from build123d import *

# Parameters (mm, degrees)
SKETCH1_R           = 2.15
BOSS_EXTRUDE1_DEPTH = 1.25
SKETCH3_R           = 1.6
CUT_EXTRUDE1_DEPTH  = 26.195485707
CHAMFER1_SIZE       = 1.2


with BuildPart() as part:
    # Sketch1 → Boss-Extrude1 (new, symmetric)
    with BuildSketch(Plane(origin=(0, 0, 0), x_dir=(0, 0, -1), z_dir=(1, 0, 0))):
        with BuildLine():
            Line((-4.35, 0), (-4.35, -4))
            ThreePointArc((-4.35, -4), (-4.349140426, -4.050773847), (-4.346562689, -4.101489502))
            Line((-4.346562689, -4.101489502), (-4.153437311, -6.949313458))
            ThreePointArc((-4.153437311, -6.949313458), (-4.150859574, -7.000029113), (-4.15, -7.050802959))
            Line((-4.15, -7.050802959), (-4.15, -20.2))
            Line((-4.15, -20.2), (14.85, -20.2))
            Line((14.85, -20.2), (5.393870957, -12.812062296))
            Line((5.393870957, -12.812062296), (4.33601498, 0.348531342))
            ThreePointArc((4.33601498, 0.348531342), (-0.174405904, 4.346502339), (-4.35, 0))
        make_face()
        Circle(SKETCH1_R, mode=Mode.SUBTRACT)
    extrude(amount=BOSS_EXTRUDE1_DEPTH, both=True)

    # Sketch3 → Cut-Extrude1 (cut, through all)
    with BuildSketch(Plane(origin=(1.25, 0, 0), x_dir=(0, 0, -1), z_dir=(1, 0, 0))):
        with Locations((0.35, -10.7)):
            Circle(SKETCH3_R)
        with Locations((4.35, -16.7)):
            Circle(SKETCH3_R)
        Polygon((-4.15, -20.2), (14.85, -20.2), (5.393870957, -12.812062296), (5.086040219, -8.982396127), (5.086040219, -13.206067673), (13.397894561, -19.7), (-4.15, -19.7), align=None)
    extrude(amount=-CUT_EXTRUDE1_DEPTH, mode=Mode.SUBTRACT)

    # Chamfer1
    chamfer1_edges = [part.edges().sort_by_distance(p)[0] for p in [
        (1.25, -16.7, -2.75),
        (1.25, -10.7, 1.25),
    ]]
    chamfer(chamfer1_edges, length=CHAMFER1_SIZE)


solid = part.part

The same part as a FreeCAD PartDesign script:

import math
import FreeCAD as App
import Part
import Sketcher
Q = App.Units.Quantity


def edges_at(feature, points):
    """Names of the edges that pass closest to the given points."""
    edges = feature.Shape.Edges
    near = lambda p: min(range(len(edges)), key=lambda i: edges[i].distToShape(Part.Vertex(*p))[0])
    return sorted({f"Edge{near(p) + 1}" for p in points})

doc = App.newDocument("Part")
body = doc.addObject("PartDesign::Body", "Body")

# Sketch on YZ plane
sketch1 = body.newObject("Sketcher::SketchObject", "Sketch")
sketch1.AttachmentSupport = (doc.getObject("YZ_Plane"), [""])
sketch1.MapMode = "FlatFace"
sketch1.addGeometry([
    Part.LineSegment(App.Vector(0, 4.35, 0), App.Vector(-4, 4.35, 0)),  # 0
    Part.ArcOfCircle(Part.Circle(App.Vector(-4, 2.85, 0), App.Vector(0, 0, 1), 1.5), math.radians(90), math.radians(93.88)),  # 1
    Part.LineSegment(App.Vector(-4.1, 4.35, 0), App.Vector(-6.95, 4.15, 0)),  # 2
    Part.ArcOfCircle(Part.Circle(App.Vector(-7.05, 5.65, 0), App.Vector(0, 0, 1), 1.5), math.radians(-90), math.radians(-86.12)),  # 3
    Part.LineSegment(App.Vector(-7.05, 4.15, 0), App.Vector(-20.2, 4.15, 0)),  # 4
    Part.LineSegment(App.Vector(-20.2, 4.15, 0), App.Vector(-20.2, -14.85, 0)),  # 5
    Part.LineSegment(App.Vector(-20.2, -14.85, 0), App.Vector(-12.81, -5.39, 0)),  # 6
    Part.LineSegment(App.Vector(-12.81, -5.39, 0), App.Vector(0.35, -4.34, 0)),  # 7
    Part.ArcOfCircle(Part.Circle(App.Vector(0, 0, 0), App.Vector(0, 0, 1), 4.35), math.radians(-85), math.radians(90)),  # 8
    Part.Circle(App.Vector(0, 0, 0), App.Vector(0, 0, 1), 2.15),  # 9
], False)
sketch1.addConstraint([
    Sketcher.Constraint("Tangent", 0, 2, 1, 1),
    Sketcher.Constraint("Tangent", 1, 2, 2, 1),
    Sketcher.Constraint("Tangent", 2, 2, 3, 2),
    Sketcher.Constraint("Tangent", 3, 1, 4, 1),
    Sketcher.Constraint("Coincident", 4, 2, 5, 1),
    Sketcher.Constraint("Coincident", 5, 2, 6, 1),
    Sketcher.Constraint("Coincident", 6, 2, 7, 1),
    Sketcher.Constraint("Tangent", 7, 2, 8, 1),
    Sketcher.Constraint("Tangent", 8, 2, 0, 1),
    Sketcher.Constraint("Horizontal", 0),
    Sketcher.Constraint("Horizontal", 4),
    Sketcher.Constraint("Vertical", 5),
    Sketcher.Constraint("Coincident", 8, 3, -1, 1),
    Sketcher.Constraint("Coincident", 9, 3, -1, 1),
    Sketcher.Constraint("Equal", 1, 3),
    Sketcher.Constraint("Diameter", 9, Q("4.3 mm")),
    Sketcher.Constraint("Radius", 1, Q("1.5 mm")),
    Sketcher.Constraint("DistanceX", 0, 2, 0, 1, Q("4 mm")),
    Sketcher.Constraint("DistanceY", 5, 2, 5, 1, Q("19 mm")),
    Sketcher.Constraint("Angle", 6, Q("52 deg")),
    Sketcher.Constraint("Radius", 8, Q("4.35 mm")),
    Sketcher.Constraint("Distance", 6, Q("12 mm")),
    Sketcher.Constraint("DistanceX", 4, 2, -1, 1, Q("20.2 mm")),
    Sketcher.Constraint("DistanceY", 1, 3, 3, 3, Q("2.8 mm")),
    Sketcher.Constraint("DistanceX", 4, 2, 4, 1, Q("13.149197 mm")),
])
pad1 = body.newObject("PartDesign::Pad", "Pad")
pad1.Profile = sketch1
pad1.Length = 2.5
pad1.Midplane = True

# Sketch on YZ plane
sketch2 = body.newObject("Sketcher::SketchObject", "Sketch001")
sketch2.AttachmentSupport = (doc.getObject("YZ_Plane"), [""])
sketch2.MapMode = "FlatFace"
sketch2.AttachmentOffset = App.Placement(App.Vector(0, 0, 1.25), App.Rotation())
sketch2.addGeometry([
    Part.Circle(App.Vector(-10.7, -0.3, 0), App.Vector(0, 0, 1), 1.6),  # 0
    Part.Circle(App.Vector(-16.7, -4.3, 0), App.Vector(0, 0, 1), 1.6),  # 1
    Part.LineSegment(App.Vector(-20.2, 4.2, 0), App.Vector(-20.2, -14.8, 0)),  # 2
    Part.LineSegment(App.Vector(-20.2, -14.8, 0), App.Vector(-12.8, -5.4, 0)),  # 3
    Part.LineSegment(App.Vector(-12.8, -5.4, 0), App.Vector(-9, -5.1, 0)),  # 4
    Part.LineSegment(App.Vector(-9, -5.1, 0), App.Vector(-13.2, -5.1, 0)),  # 5
    Part.LineSegment(App.Vector(-13.2, -5.1, 0), App.Vector(-19.7, -13.4, 0)),  # 6
    Part.LineSegment(App.Vector(-19.7, -13.4, 0), App.Vector(-19.7, 4.2, 0)),  # 7
    Part.LineSegment(App.Vector(-19.7, 4.2, 0), App.Vector(-20.2, 4.2, 0)),  # 8
], False)
sketch2.addConstraint([
    Sketcher.Constraint("Coincident", 2, 2, 3, 1),
    Sketcher.Constraint("Coincident", 3, 2, 4, 1),
    Sketcher.Constraint("Coincident", 4, 2, 5, 1),
    Sketcher.Constraint("Coincident", 5, 2, 6, 1),
    Sketcher.Constraint("Coincident", 6, 2, 7, 1),
    Sketcher.Constraint("Coincident", 7, 2, 8, 1),
    Sketcher.Constraint("Coincident", 8, 2, 2, 1),
    Sketcher.Constraint("Vertical", 2),
    Sketcher.Constraint("Horizontal", 5),
    Sketcher.Constraint("Vertical", 7),
    Sketcher.Constraint("Horizontal", 8),
    Sketcher.Constraint("Equal", 0, 1),
    Sketcher.Constraint("Parallel", 3, 6),
    Sketcher.Constraint("Diameter", 0, Q("3.2 mm")),
    Sketcher.Constraint("DistanceY", 2, 2, 2, 1, Q("19 mm")),
    Sketcher.Constraint("Angle", 3, Q("52 deg")),
    Sketcher.Constraint("Distance", 3, Q("12 mm")),
    Sketcher.Constraint("DistanceX", 8, 2, 8, 1, Q("0.5 mm")),
    Sketcher.Constraint("DistanceX", 1, 3, 0, 3, Q("6 mm")),
    Sketcher.Constraint("DistanceY", 1, 3, 0, 3, Q("4 mm")),
    Sketcher.Constraint("DistanceX", 6, 2, 1, 3, Q("3 mm")),
    Sketcher.Constraint("DistanceX", 0, 3, -1, 1, Q("10.7 mm")),
    Sketcher.Constraint("DistanceY", 2, 2, 1, 3, Q("10.5 mm")),
    Sketcher.Constraint("DistanceY", 0, 3, -1, 1, Q("0.35 mm")),
    Sketcher.Constraint("DistanceX", 5, 2, 5, 1, Q("4.223672 mm")),
    Sketcher.Constraint("Distance", 4, Q("3.842018 mm")),
    Sketcher.Constraint("DistanceY", 7, 1, 7, 2, Q("17.547895 mm")),
])
pocket1 = body.newObject("PartDesign::Pocket", "Pocket")
pocket1.Profile = sketch2
pocket1.Type = "ThroughAll"
doc.recompute()

chamfer = body.newObject("PartDesign::Chamfer", "Chamfer")
chamfer.Base = (pocket1, edges_at(pocket1, [(1.25, -16.7, -2.75), (1.25, -10.7, 1.25)]))
chamfer.Size = 1.2

doc.recompute()
